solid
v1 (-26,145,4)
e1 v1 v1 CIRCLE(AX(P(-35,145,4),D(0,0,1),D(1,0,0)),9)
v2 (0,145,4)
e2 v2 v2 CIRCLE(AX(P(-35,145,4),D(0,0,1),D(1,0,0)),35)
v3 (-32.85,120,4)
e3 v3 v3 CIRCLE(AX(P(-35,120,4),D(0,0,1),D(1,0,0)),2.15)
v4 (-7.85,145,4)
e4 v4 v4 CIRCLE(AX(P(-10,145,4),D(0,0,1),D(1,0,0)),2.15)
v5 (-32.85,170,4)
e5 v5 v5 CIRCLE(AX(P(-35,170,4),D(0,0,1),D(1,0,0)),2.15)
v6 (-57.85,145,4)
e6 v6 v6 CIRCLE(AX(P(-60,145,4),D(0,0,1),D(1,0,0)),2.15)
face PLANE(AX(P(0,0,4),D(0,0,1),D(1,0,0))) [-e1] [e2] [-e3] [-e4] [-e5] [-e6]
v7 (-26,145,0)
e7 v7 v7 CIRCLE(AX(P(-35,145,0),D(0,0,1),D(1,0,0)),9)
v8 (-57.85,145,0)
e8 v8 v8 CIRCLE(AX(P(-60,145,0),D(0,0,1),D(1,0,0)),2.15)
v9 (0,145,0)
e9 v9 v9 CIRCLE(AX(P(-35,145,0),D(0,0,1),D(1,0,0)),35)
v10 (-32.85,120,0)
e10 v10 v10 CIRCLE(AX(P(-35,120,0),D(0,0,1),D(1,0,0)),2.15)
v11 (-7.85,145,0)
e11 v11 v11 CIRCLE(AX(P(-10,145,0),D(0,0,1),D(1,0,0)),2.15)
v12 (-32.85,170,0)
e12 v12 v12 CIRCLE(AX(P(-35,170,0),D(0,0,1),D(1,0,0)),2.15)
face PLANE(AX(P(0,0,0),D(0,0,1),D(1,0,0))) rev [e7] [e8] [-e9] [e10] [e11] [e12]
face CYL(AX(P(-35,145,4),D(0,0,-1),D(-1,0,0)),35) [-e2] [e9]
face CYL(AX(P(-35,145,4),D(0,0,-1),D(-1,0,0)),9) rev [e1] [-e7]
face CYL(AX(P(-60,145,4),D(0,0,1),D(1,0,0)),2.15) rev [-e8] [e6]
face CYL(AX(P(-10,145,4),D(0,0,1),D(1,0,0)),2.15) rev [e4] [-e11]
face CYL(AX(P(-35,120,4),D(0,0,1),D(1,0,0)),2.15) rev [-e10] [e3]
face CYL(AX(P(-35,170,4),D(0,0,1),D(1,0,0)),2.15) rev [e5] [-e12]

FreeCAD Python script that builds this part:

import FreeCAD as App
import Part
import Sketcher

doc = App.newDocument("Part")
params = doc.addObject("Spreadsheet::Sheet", "Params")
for row, (alias, value) in enumerate([
    ("sketch1_diameter", "70 mm"),
    ("sketch1_diameter2", "18 mm"),
    ("pad1_length", "4 mm"),
    ("sketch2_diameter", "4.3 mm"),
    ("hole_diameter", "4.3 mm"),
], start=1):
    params.set(f"A{row}", alias)
    params.set(f"B{row}", "=" + value)
    params.setAlias(f"B{row}", alias)

body = doc.addObject("PartDesign::Body", "Body")

sketch1 = body.newObject("Sketcher::SketchObject", "Sketch")
sketch1.AttachmentSupport = (doc.getObject("XY_Plane"), [""])
sketch1.MapMode = "FlatFace"
sketch1.addGeometry(Part.Circle(App.Vector(-35, 145, 0), App.Vector(0, 0, 1), 35), False)
sketch1.addGeometry(Part.Circle(App.Vector(-35, 145, 0), App.Vector(0, 0, 1), 9), False)
sketch1.addConstraint(Sketcher.Constraint("Coincident", 1, 3, 0, 3))
sketch1.addConstraint(Sketcher.Constraint("Diameter", 0, 70.0))
sketch1.addConstraint(Sketcher.Constraint("Diameter", 1, 18.0))
sketch1.addConstraint(Sketcher.Constraint("DistanceX", 0, 3, -1, 1, 35.0))
sketch1.addConstraint(Sketcher.Constraint("DistanceY", -1, 1, 0, 3, 145.0))
sketch1.setExpression("Constraints[1]", "Params.sketch1_diameter")
sketch1.setExpression("Constraints[2]", "Params.sketch1_diameter2")
pad1 = body.newObject("PartDesign::Pad", "Pad")
pad1.Profile = sketch1
pad1.setExpression("Length", "Params.pad1_length")

sketch2 = body.newObject("Sketcher::SketchObject", "Sketch001")
sketch2.AttachmentSupport = (doc.getObject("XY_Plane"), [""])
sketch2.MapMode = "FlatFace"
sketch2.AttachmentOffset = App.Placement(App.Vector(0, 0, 4), App.Rotation())
sketch2.addGeometry(Part.Circle(App.Vector(-35, 170, 0), App.Vector(0, 0, 1), 2.1), False)
sketch2.addGeometry(Part.Circle(App.Vector(-10, 145, 0), App.Vector(0, 0, 1), 2.1), False)
sketch2.addGeometry(Part.Circle(App.Vector(-35, 120, 0), App.Vector(0, 0, 1), 2.1), False)
sketch2.addGeometry(Part.Circle(App.Vector(-60, 145, 0), App.Vector(0, 0, 1), 2.1), False)
sketch2.addConstraint(Sketcher.Constraint("Equal", 0, 1))
sketch2.addConstraint(Sketcher.Constraint("Equal", 1, 2))
sketch2.addConstraint(Sketcher.Constraint("Equal", 2, 3))
sketch2.addConstraint(Sketcher.Constraint("Horizontal", 1, 3, 3, 3))
sketch2.addConstraint(Sketcher.Constraint("Vertical", 0, 3, 2, 3))
sketch2.addConstraint(Sketcher.Constraint("Diameter", 0, 4.3))
sketch2.addConstraint(Sketcher.Constraint("DistanceX", 0, 3, -1, 1, 35.0))
sketch2.addConstraint(Sketcher.Constraint("DistanceY", -1, 1, 0, 3, 170.0))
sketch2.addConstraint(Sketcher.Constraint("DistanceX", 1, 3, -1, 1, 10.0))
sketch2.addConstraint(Sketcher.Constraint("DistanceY", -1, 1, 1, 3, 145.0))
sketch2.addConstraint(Sketcher.Constraint("DistanceY", -1, 1, 2, 3, 120.0))
sketch2.addConstraint(Sketcher.Constraint("DistanceX", 3, 3, -1, 1, 60.0))
sketch2.setExpression("Constraints[5]", "Params.sketch2_diameter")
doc.recompute()
hole = body.newObject("PartDesign::Hole", "Hole")
hole.Profile = sketch2
hole.ThreadType = "None"
hole.setExpression("Diameter", "Params.hole_diameter")
hole.DepthType = "ThroughAll"

doc.recompute()
